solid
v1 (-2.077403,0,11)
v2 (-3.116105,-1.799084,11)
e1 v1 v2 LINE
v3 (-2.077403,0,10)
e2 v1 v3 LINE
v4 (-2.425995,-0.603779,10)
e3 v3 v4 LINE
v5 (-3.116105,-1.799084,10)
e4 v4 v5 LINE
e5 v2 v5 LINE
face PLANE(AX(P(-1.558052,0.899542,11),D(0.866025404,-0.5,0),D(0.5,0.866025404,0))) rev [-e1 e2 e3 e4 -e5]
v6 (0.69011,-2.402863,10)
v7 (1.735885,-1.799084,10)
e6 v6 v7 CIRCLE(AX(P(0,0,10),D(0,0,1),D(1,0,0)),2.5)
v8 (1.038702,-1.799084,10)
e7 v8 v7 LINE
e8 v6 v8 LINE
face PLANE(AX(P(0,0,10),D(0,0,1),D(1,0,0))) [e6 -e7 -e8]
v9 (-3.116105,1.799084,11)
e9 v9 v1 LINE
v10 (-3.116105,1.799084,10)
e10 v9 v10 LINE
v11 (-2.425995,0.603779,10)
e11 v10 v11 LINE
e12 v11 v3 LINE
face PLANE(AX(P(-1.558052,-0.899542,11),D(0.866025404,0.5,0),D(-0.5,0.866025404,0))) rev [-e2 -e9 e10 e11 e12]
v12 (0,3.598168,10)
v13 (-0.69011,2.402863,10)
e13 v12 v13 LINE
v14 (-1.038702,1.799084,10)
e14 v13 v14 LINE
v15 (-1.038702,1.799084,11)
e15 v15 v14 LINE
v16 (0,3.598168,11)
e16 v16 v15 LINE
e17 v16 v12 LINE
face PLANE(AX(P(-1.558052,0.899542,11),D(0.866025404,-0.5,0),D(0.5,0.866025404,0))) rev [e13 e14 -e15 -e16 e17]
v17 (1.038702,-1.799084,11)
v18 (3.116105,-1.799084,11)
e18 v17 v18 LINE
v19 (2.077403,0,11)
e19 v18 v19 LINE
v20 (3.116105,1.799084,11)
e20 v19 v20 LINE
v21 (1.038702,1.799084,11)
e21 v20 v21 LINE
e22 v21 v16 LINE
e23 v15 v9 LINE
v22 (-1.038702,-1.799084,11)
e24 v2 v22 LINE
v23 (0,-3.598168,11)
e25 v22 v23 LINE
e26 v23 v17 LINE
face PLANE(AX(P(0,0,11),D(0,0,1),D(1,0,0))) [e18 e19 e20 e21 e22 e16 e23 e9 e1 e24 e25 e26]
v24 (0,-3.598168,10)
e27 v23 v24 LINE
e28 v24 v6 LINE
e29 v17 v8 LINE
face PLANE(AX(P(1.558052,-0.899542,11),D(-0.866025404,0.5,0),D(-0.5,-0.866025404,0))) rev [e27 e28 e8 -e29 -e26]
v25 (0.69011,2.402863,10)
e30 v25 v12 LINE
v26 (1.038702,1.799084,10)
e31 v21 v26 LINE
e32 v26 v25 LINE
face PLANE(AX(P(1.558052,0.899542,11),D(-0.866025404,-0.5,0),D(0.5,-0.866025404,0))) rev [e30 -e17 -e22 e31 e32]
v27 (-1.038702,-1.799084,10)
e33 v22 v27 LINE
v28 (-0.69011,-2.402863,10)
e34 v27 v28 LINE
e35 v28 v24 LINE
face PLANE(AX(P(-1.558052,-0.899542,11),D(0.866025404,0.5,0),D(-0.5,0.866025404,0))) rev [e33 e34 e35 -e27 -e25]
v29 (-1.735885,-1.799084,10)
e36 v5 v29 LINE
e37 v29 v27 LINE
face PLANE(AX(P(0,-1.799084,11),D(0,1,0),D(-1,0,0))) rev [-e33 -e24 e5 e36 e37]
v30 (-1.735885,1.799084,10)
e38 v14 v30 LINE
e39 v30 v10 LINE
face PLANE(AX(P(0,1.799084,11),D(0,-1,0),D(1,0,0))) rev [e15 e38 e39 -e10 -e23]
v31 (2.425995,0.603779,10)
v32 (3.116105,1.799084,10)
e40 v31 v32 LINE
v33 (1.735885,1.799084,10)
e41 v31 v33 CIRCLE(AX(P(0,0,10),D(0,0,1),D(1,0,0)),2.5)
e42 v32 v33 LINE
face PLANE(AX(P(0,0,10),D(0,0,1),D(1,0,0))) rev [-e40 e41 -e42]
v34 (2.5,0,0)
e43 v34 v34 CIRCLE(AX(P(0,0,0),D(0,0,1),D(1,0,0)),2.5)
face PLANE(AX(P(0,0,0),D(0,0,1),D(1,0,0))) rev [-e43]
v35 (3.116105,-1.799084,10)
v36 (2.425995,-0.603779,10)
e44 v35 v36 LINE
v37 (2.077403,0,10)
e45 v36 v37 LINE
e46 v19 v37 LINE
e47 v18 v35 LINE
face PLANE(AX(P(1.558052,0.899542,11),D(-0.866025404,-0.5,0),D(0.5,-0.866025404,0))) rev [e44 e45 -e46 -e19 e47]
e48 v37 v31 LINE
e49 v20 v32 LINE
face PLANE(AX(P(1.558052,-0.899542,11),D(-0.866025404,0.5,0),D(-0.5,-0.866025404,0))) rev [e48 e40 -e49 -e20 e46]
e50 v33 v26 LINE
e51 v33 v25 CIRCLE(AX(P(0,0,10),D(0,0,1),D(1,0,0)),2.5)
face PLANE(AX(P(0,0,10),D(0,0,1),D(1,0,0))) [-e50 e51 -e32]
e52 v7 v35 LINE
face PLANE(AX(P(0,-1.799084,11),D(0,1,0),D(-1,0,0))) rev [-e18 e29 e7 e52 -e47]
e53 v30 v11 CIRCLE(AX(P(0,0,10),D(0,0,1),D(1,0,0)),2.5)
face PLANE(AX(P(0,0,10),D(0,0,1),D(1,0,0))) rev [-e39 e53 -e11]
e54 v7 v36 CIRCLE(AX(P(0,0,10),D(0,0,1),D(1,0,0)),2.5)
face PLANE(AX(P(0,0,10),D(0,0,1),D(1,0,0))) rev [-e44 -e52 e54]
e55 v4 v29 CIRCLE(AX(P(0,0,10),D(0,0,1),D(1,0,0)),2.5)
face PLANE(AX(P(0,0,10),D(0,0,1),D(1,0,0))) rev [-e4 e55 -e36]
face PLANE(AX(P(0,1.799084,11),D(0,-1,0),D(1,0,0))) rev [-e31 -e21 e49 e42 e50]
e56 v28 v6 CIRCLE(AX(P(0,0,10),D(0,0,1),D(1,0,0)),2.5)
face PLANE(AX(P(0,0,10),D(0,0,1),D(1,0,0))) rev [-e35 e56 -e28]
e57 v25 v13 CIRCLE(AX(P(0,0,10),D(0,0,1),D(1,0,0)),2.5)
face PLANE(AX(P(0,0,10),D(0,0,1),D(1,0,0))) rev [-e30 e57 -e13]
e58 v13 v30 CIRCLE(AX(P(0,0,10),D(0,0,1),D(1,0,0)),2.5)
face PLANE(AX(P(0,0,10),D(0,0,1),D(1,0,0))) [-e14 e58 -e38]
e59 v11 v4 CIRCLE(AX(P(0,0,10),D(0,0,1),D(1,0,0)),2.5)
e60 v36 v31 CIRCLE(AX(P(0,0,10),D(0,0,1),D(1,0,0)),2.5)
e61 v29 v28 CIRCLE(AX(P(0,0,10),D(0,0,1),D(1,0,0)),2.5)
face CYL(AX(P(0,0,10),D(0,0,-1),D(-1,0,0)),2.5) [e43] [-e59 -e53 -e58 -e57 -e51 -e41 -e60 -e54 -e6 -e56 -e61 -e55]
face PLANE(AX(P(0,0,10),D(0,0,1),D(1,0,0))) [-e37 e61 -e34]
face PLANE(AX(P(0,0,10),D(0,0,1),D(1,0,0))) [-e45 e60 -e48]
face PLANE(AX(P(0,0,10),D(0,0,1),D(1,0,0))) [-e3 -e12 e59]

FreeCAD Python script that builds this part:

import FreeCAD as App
import Part
import Sketcher
Q = App.Units.Quantity

doc = App.newDocument("Part")
body = doc.addObject("PartDesign::Body", "Body")

sketch1 = doc.addObject("Sketcher::SketchObject", "Sketch")
body.addObject(sketch1)
sketch1.AttachmentSupport = (doc.XY_Plane, [""])
sketch1.MapMode = "FlatFace"
sketch1.addGeometry(Part.Circle(App.Vector(0, 0, 0), App.Vector(0, 0, 1), 2.5), False)
sketch1.addConstraint(Sketcher.Constraint("Coincident", 0, 3, -1, 1))
sketch1.addConstraint(Sketcher.Constraint("Diameter", 0, 5.0))
pad1 = doc.addObject("PartDesign::Pad", "Pad")
body.addObject(pad1)
pad1.Profile = sketch1
pad1.Length = 10

sketch2 = doc.addObject("Sketcher::SketchObject", "Sketch001")
body.addObject(sketch2)
sketch2.AttachmentSupport = (doc.XY_Plane, [""])
sketch2.MapMode = "FlatFace"
sketch2.AttachmentOffset = App.Placement(App.Vector(0, 0, 10), App.Rotation())
sketch2.addGeometry(Part.LineSegment(App.Vector(-0.7, 2.4, 0), App.Vector(-1, 1.8, 0)), False)
sketch2.addGeometry(Part.LineSegment(App.Vector(-1, 1.8, 0), App.Vector(-3.1, 1.8, 0)), False)
sketch2.addGeometry(Part.LineSegment(App.Vector(-3.1, 1.8, 0), App.Vector(-2.4, 0.6, 0)), False)
sketch2.addGeometry(Part.LineSegment(App.Vector(-2.4, 0.6, 0), App.Vector(-2.1, 0, 0)), False)
sketch2.addGeometry(Part.LineSegment(App.Vector(-2.1, 0, 0), App.Vector(-2.4, -0.6, 0)), False)
sketch2.addGeometry(Part.LineSegment(App.Vector(-2.4, -0.6, 0), App.Vector(-3.1, -1.8, 0)), False)
sketch2.addGeometry(Part.LineSegment(App.Vector(-3.1, -1.8, 0), App.Vector(-1, -1.8, 0)), False)
sketch2.addGeometry(Part.LineSegment(App.Vector(-1, -1.8, 0), App.Vector(-0.7, -2.4, 0)), False)
sketch2.addGeometry(Part.LineSegment(App.Vector(-0.7, -2.4, 0), App.Vector(0, -3.6, 0)), False)
sketch2.addGeometry(Part.LineSegment(App.Vector(0, -3.6, 0), App.Vector(0.7, -2.4, 0)), False)
sketch2.addGeometry(Part.LineSegment(App.Vector(0.7, -2.4, 0), App.Vector(1, -1.8, 0)), False)
sketch2.addGeometry(Part.LineSegment(App.Vector(1, -1.8, 0), App.Vector(3.1, -1.8, 0)), False)
sketch2.addGeometry(Part.LineSegment(App.Vector(3.1, -1.8, 0), App.Vector(2.4, -0.6, 0)), False)
sketch2.addGeometry(Part.LineSegment(App.Vector(2.4, -0.6, 0), App.Vector(2.1, 0, 0)), False)
sketch2.addGeometry(Part.LineSegment(App.Vector(2.1, 0, 0), App.Vector(2.4, 0.6, 0)), False)
sketch2.addGeometry(Part.LineSegment(App.Vector(2.4, 0.6, 0), App.Vector(3.1, 1.8, 0)), False)
sketch2.addGeometry(Part.LineSegment(App.Vector(3.1, 1.8, 0), App.Vector(1, 1.8, 0)), False)
sketch2.addGeometry(Part.LineSegment(App.Vector(1, 1.8, 0), App.Vector(0.7, 2.4, 0)), False)
sketch2.addGeometry(Part.LineSegment(App.Vector(0.7, 2.4, 0), App.Vector(0, 3.6, 0)), False)
sketch2.addGeometry(Part.LineSegment(App.Vector(0, 3.6, 0), App.Vector(-0.7, 2.4, 0)), False)
sketch2.addConstraint(Sketcher.Constraint("Coincident", 0, 2, 1, 1))
sketch2.addConstraint(Sketcher.Constraint("Coincident", 1, 2, 2, 1))
sketch2.addConstraint(Sketcher.Constraint("Coincident", 2, 2, 3, 1))
sketch2.addConstraint(Sketcher.Constraint("Coincident", 3, 2, 4, 1))
sketch2.addConstraint(Sketcher.Constraint("Coincident", 4, 2, 5, 1))
sketch2.addConstraint(Sketcher.Constraint("Coincident", 5, 2, 6, 1))
sketch2.addConstraint(Sketcher.Constraint("Coincident", 6, 2, 7, 1))
sketch2.addConstraint(Sketcher.Constraint("Coincident", 7, 2, 8, 1))
sketch2.addConstraint(Sketcher.Constraint("Coincident", 8, 2, 9, 1))
sketch2.addConstraint(Sketcher.Constraint("Coincident", 9, 2, 10, 1))
sketch2.addConstraint(Sketcher.Constraint("Coincident", 10, 2, 11, 1))
sketch2.addConstraint(Sketcher.Constraint("Coincident", 11, 2, 12, 1))
sketch2.addConstraint(Sketcher.Constraint("Coincident", 12, 2, 13, 1))
sketch2.addConstraint(Sketcher.Constraint("Coincident", 13, 2, 14, 1))
sketch2.addConstraint(Sketcher.Constraint("Coincident", 14, 2, 15, 1))
sketch2.addConstraint(Sketcher.Constraint("Coincident", 15, 2, 16, 1))
sketch2.addConstraint(Sketcher.Constraint("Coincident", 16, 2, 17, 1))
sketch2.addConstraint(Sketcher.Constraint("Coincident", 17, 2, 18, 1))
sketch2.addConstraint(Sketcher.Constraint("Coincident", 18, 2, 19, 1))
sketch2.addConstraint(Sketcher.Constraint("Coincident", 19, 2, 0, 1))
sketch2.addConstraint(Sketcher.Constraint("Horizontal", 1))
sketch2.addConstraint(Sketcher.Constraint("Horizontal", 6))
sketch2.addConstraint(Sketcher.Constraint("Horizontal", 11))
sketch2.addConstraint(Sketcher.Constraint("Horizontal", 16))
sketch2.addConstraint(Sketcher.Constraint("Symmetric", 0, 2, 10, 2, -1, 1))
sketch2.addConstraint(Sketcher.Constraint("Symmetric", 2, 2, 12, 2, -1, 1))
sketch2.addConstraint(Sketcher.Constraint("Symmetric", 3, 2, 13, 2, -1, 1))
sketch2.addConstraint(Sketcher.Constraint("Symmetric", 4, 2, 14, 2, -1, 1))
sketch2.addConstraint(Sketcher.Constraint("Symmetric", 5, 2, 15, 2, -1, 1))
sketch2.addConstraint(Sketcher.Constraint("Symmetric", 7, 2, 17, 2, -1, 1))
sketch2.addConstraint(Sketcher.Constraint("Symmetric", 8, 2, 18, 2, -1, 1))
sketch2.addConstraint(Sketcher.Constraint("Symmetric", 9, 2, 19, 2, -1, 1))
sketch2.addConstraint(Sketcher.Constraint("Symmetric", 7, 2, 9, 2, -2))
sketch2.addConstraint(Sketcher.Constraint("Symmetric", 6, 2, 10, 2, -2))
sketch2.addConstraint(Sketcher.Constraint("Symmetric", 4, 2, 12, 2, -2))
sketch2.addConstraint(Sketcher.Constraint("PointOnObject", 3, 2, -1))
sketch2.addConstraint(Sketcher.Constraint("PointOnObject", 8, 2, -2))
sketch2.addConstraint(Sketcher.Constraint("Parallel", 2, 3))
sketch2.addConstraint(Sketcher.Constraint("Parallel", 0, 4))
sketch2.addConstraint(Sketcher.Constraint("Parallel", 4, 5))
sketch2.addConstraint(Sketcher.Constraint("Parallel", 7, 8))
sketch2.addConstraint(Sketcher.Constraint("Parallel", 8, 12))
sketch2.addConstraint(Sketcher.Constraint("Parallel", 13, 17))
sketch2.addConstraint(Sketcher.Constraint("Equal", 0, 3))
sketch2.addConstraint(Sketcher.Constraint("Equal", 5, 8))
sketch2.addConstraint(Sketcher.Constraint("Angle", 0, Q("-120 deg")))
sketch2.addConstraint(Sketcher.Constraint("DistanceX", 0, 2, -1, 1, 1.038702))
sketch2.addConstraint(Sketcher.Constraint("DistanceX", 3, 2, 0, 2, 1.038702))
sketch2.addConstraint(Sketcher.Constraint("Distance", 2, 1.38022))
pad2 = doc.addObject("PartDesign::Pad", "Pad001")
body.addObject(pad2)
pad2.Profile = sketch2
pad2.Length = 1

doc.recompute()
